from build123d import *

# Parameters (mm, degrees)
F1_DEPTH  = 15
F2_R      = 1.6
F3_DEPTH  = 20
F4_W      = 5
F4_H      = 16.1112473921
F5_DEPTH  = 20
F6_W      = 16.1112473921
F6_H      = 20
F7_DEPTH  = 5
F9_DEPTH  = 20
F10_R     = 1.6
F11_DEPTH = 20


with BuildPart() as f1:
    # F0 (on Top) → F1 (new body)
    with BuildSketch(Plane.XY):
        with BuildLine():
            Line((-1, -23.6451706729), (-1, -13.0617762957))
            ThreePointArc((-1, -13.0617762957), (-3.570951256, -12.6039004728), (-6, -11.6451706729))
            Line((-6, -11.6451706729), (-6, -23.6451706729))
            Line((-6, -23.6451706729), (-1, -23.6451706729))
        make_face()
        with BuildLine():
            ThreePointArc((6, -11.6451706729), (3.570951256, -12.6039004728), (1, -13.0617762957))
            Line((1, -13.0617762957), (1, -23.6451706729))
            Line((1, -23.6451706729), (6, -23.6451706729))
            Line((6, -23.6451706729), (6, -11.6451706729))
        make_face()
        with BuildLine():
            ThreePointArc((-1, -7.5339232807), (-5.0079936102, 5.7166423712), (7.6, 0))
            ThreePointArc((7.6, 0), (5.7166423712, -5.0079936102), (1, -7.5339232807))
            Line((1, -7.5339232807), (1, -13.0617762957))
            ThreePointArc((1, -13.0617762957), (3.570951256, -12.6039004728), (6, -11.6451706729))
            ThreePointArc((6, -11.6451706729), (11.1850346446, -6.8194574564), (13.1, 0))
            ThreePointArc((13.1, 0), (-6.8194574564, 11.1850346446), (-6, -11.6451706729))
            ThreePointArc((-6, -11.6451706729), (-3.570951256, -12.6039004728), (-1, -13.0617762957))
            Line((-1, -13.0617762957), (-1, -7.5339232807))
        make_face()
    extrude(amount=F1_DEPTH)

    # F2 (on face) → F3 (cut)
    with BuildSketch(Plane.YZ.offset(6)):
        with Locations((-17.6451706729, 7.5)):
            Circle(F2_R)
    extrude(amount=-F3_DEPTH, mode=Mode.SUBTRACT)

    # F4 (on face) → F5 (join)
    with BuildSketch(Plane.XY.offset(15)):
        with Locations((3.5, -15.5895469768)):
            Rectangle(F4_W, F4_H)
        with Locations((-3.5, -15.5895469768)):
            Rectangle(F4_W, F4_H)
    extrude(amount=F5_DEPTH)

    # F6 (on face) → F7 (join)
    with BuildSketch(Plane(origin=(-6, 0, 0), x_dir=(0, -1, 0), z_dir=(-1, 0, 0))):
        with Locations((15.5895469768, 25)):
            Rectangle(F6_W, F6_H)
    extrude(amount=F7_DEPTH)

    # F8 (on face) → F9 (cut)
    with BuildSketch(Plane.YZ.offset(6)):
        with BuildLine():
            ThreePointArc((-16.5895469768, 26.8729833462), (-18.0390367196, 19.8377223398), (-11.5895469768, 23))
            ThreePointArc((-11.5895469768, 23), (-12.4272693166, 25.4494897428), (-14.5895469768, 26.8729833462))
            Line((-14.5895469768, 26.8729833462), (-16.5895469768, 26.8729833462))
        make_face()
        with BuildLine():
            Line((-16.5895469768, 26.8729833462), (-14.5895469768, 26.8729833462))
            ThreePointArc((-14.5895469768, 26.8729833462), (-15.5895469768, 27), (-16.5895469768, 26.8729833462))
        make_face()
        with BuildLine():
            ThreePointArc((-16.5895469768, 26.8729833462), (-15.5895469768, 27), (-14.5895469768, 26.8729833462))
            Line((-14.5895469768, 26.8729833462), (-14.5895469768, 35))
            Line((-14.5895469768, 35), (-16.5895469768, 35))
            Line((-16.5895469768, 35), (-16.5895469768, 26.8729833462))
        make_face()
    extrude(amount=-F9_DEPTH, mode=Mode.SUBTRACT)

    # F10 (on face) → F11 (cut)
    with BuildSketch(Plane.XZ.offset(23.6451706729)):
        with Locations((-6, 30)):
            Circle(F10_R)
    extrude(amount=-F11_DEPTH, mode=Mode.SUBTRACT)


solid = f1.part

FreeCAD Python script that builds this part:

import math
import FreeCAD as App
import Part
import Sketcher
Q = App.Units.Quantity

doc = App.newDocument("Part")
params = doc.addObject("Spreadsheet::Sheet", "Params")
for row, (alias, value) in enumerate([
    ("sketch1_radius", "7.6 mm"),
    ("sketch1_radius2", "13.1 mm"),
    ("sketch1_width", "5 mm"),
    ("sketch1_height", "12 mm"),
    ("pad1_length", "15 mm"),
    ("sketch2_diameter", "3.2 mm"),
    ("pocket1_length", "20 mm"),
    ("sketch3_width", "5 mm"),
    ("pad2_length", "20 mm"),
    ("sketch4_height", "20 mm"),
    ("pad3_length", "5 mm"),
    ("sketch5_radius", "4 mm"),
    ("sketch5_width", "2 mm"),
    ("pocket2_length", "20 mm"),
    ("sketch6_diameter", "3.2 mm"),
    ("pocket3_length", "20 mm"),
], start=1):
    params.set(f"A{row}", alias)
    params.set(f"B{row}", "=" + value)
    params.setAlias(f"B{row}", alias)

body = doc.addObject("PartDesign::Body", "Body")

# Sketch on XY plane
sketch1 = body.newObject("Sketcher::SketchObject", "Sketch")
sketch1.AttachmentSupport = (doc.getObject("XY_Plane"), [""])
sketch1.MapMode = "FlatFace"
sketch1.addGeometry([
    Part.LineSegment(App.Vector(-1, -24, 0), App.Vector(-1, -8, 0)),  # 0
    Part.ArcOfCircle(Part.Circle(App.Vector(0, 0, 0), App.Vector(0, 0, 1), 8), math.radians(0), math.radians(262)),  # 1
    Part.ArcOfCircle(Part.Circle(App.Vector(0, 0, 0), App.Vector(0, 0, 1), 8), math.radians(-82), math.radians(0)),  # 2
    Part.LineSegment(App.Vector(1, -8, 0), App.Vector(1, -24, 0)),  # 3
    Part.LineSegment(App.Vector(1, -24, 0), App.Vector(6, -24, 0)),  # 4
    Part.LineSegment(App.Vector(6, -24, 0), App.Vector(6, -12, 0)),  # 5
    Part.ArcOfCircle(Part.Circle(App.Vector(0, 0, 0), App.Vector(0, 0, 1), 13), math.radians(-63), math.radians(0)),  # 6
    Part.ArcOfCircle(Part.Circle(App.Vector(0, 0, 0), App.Vector(0, 0, 1), 13), math.radians(0), math.radians(243)),  # 7
    Part.LineSegment(App.Vector(-6, -12, 0), App.Vector(-6, -24, 0)),  # 8
    Part.LineSegment(App.Vector(-6, -24, 0), App.Vector(-1, -24, 0)),  # 9
], False)
sketch1.addConstraint([
    Sketcher.Constraint("Coincident", 0, 2, 1, 2),
    Sketcher.Constraint("Tangent", 1, 1, 2, 2),
    Sketcher.Constraint("Coincident", 2, 1, 3, 1),
    Sketcher.Constraint("Coincident", 3, 2, 4, 1),
    Sketcher.Constraint("Coincident", 4, 2, 5, 1),
    Sketcher.Constraint("Coincident", 5, 2, 6, 1),
    Sketcher.Constraint("Tangent", 6, 2, 7, 1),
    Sketcher.Constraint("Coincident", 7, 2, 8, 1),
    Sketcher.Constraint("Coincident", 8, 2, 9, 1),
    Sketcher.Constraint("Coincident", 9, 2, 0, 1),
    Sketcher.Constraint("Vertical", 0),
    Sketcher.Constraint("Vertical", 3),
    Sketcher.Constraint("Horizontal", 4),
    Sketcher.Constraint("Vertical", 5),
    Sketcher.Constraint("Vertical", 8),
    Sketcher.Constraint("Horizontal", 9),
    Sketcher.Constraint("Coincident", 1, 3, -1, 1),
    Sketcher.Constraint("Coincident", 6, 3, -1, 1),
    Sketcher.Constraint("Equal", 1, 2),
    Sketcher.Constraint("Equal", 6, 7),
    Sketcher.Constraint("Symmetric", 4, 2, 8, 2, -2),
    Sketcher.Constraint("PointOnObject", 1, 1, -1),
    Sketcher.Constraint("PointOnObject", 6, 2, -1),
    Sketcher.Constraint("Horizontal", 0, 2, 2, 1),
    Sketcher.Constraint("Radius", 1, Q("7.6 mm")),
    Sketcher.Constraint("Radius", 6, Q("13.1 mm")),
    Sketcher.Constraint("DistanceX", 4, 1, 4, 2, Q("5 mm")),
    Sketcher.Constraint("DistanceY", 5, 1, 5, 2, Q("12 mm")),
    Sketcher.Constraint("DistanceX", 0, 2, -1, 1, Q("1 mm")),
])
sketch1.setExpression("Constraints[24]", "Params.sketch1_radius")
sketch1.setExpression("Constraints[25]", "Params.sketch1_radius2")
sketch1.setExpression("Constraints[26]", "Params.sketch1_width")
sketch1.setExpression("Constraints[27]", "Params.sketch1_height")
pad1 = body.newObject("PartDesign::Pad", "Pad")
pad1.Profile = sketch1
pad1.setExpression("Length", "Params.pad1_length")

# Sketch on YZ plane
sketch2 = body.newObject("Sketcher::SketchObject", "Sketch001")
sketch2.AttachmentSupport = (doc.getObject("YZ_Plane"), [""])
sketch2.MapMode = "FlatFace"
sketch2.AttachmentOffset = App.Placement(App.Vector(0, 0, 6), App.Rotation())
sketch2.addGeometry(Part.Circle(App.Vector(-17.6, 7.5, 0), App.Vector(0, 0, 1), 1.6), False)
sketch2.addConstraint([
    Sketcher.Constraint("Diameter", 0, Q("3.2 mm")),
    Sketcher.Constraint("DistanceY", -1, 1, 0, 3, Q("7.5 mm")),
    Sketcher.Constraint("DistanceX", 0, 3, -1, 1, Q("17.645171 mm")),
])
sketch2.setExpression("Constraints[0]", "Params.sketch2_diameter")
pocket1 = body.newObject("PartDesign::Pocket", "Pocket")
pocket1.Profile = sketch2
pocket1.setExpression("Length", "Params.pocket1_length")

# Sketch on XY plane
sketch3 = body.newObject("Sketcher::SketchObject", "Sketch002")
sketch3.AttachmentSupport = (doc.getObject("XY_Plane"), [""])
sketch3.MapMode = "FlatFace"
sketch3.AttachmentOffset = App.Placement(App.Vector(0, 0, 15), App.Rotation())
sketch3.addGeometry([
    Part.LineSegment(App.Vector(1, -8, 0), App.Vector(1, -24, 0)),  # 0
    Part.LineSegment(App.Vector(1, -24, 0), App.Vector(6, -24, 0)),  # 1
    Part.LineSegment(App.Vector(6, -24, 0), App.Vector(6, -8, 0)),  # 2
    Part.LineSegment(App.Vector(6, -8, 0), App.Vector(1, -8, 0)),  # 3
    Part.LineSegment(App.Vector(-6, -8, 0), App.Vector(-6, -24, 0)),  # 4
    Part.LineSegment(App.Vector(-6, -24, 0), App.Vector(-1, -24, 0)),  # 5
    Part.LineSegment(App.Vector(-1, -24, 0), App.Vector(-1, -8, 0)),  # 6
    Part.LineSegment(App.Vector(-1, -8, 0), App.Vector(-6, -8, 0)),  # 7
], False)
sketch3.addConstraint([
    Sketcher.Constraint("Coincident", 0, 2, 1, 1),
    Sketcher.Constraint("Coincident", 1, 2, 2, 1),
    Sketcher.Constraint("Coincident", 2, 2, 3, 1),
    Sketcher.Constraint("Coincident", 3, 2, 0, 1),
    Sketcher.Constraint("Coincident", 4, 2, 5, 1),
    Sketcher.Constraint("Coincident", 5, 2, 6, 1),
    Sketcher.Constraint("Coincident", 6, 2, 7, 1),
    Sketcher.Constraint("Coincident", 7, 2, 4, 1),
    Sketcher.Constraint("Vertical", 0),
    Sketcher.Constraint("Horizontal", 1),
    Sketcher.Constraint("Vertical", 2),
    Sketcher.Constraint("Horizontal", 3),
    Sketcher.Constraint("Vertical", 4),
    Sketcher.Constraint("Horizontal", 5),
    Sketcher.Constraint("Vertical", 6),
    Sketcher.Constraint("Horizontal", 7),
    Sketcher.Constraint("Symmetric", 1, 2, 4, 2, -2),
    Sketcher.Constraint("Symmetric", 3, 2, 6, 2, -2),
    Sketcher.Constraint("DistanceX", 1, 1, 1, 2, Q("5 mm")),
    Sketcher.Constraint("DistanceX", -1, 1, 0, 2, Q("1 mm")),
    Sketcher.Constraint("DistanceY", 0, 2, 0, 1, Q("16.111247 mm")),
    Sketcher.Constraint("DistanceY", 0, 2, -1, 1, Q("23.645171 mm")),
])
sketch3.setExpression("Constraints[18]", "Params.sketch3_width")
pad2 = body.newObject("PartDesign::Pad", "Pad001")
pad2.Profile = sketch3
pad2.setExpression("Length", "Params.pad2_length")

# Sketch on YZ plane
sketch4 = body.newObject("Sketcher::SketchObject", "Sketch003")
sketch4.AttachmentSupport = (doc.getObject("YZ_Plane"), [""])
sketch4.MapMode = "FlatFace"
sketch4.AttachmentOffset = App.Placement(App.Vector(0, 0, -6), App.Rotation())
sketch4.addGeometry([
    Part.LineSegment(App.Vector(-8, 35, 0), App.Vector(-8, 15, 0)),
    Part.LineSegment(App.Vector(-8, 15, 0), App.Vector(-24, 15, 0)),
    Part.LineSegment(App.Vector(-24, 15, 0), App.Vector(-24, 35, 0)),
    Part.LineSegment(App.Vector(-24, 35, 0), App.Vector(-8, 35, 0)),
], False)
sketch4.addConstraint([
    Sketcher.Constraint("Coincident", 0, 2, 1, 1),
    Sketcher.Constraint("Coincident", 1, 2, 2, 1),
    Sketcher.Constraint("Coincident", 2, 2, 3, 1),
    Sketcher.Constraint("Coincident", 3, 2, 0, 1),
    Sketcher.Constraint("Vertical", 0),
    Sketcher.Constraint("Horizontal", 1),
    Sketcher.Constraint("Vertical", 2),
    Sketcher.Constraint("Horizontal", 3),
    Sketcher.Constraint("DistanceY", 0, 2, 0, 1, Q("20 mm")),
    Sketcher.Constraint("DistanceY", -1, 1, 0, 2, Q("15 mm")),
    Sketcher.Constraint("DistanceX", 1, 2, 1, 1, Q("16.111247 mm")),
    Sketcher.Constraint("DistanceX", 1, 2, -1, 1, Q("23.645171 mm")),
])
sketch4.setExpression("Constraints[8]", "Params.sketch4_height")
pad3 = body.newObject("PartDesign::Pad", "Pad002")
pad3.Profile = sketch4
pad3.setExpression("Length", "Params.pad3_length")
pad3.Reversed = True

# Sketch on YZ plane
sketch5 = body.newObject("Sketcher::SketchObject", "Sketch004")
sketch5.AttachmentSupport = (doc.getObject("YZ_Plane"), [""])
sketch5.MapMode = "FlatFace"
sketch5.AttachmentOffset = App.Placement(App.Vector(0, 0, 6), App.Rotation())
sketch5.addGeometry([
    Part.ArcOfCircle(Part.Circle(App.Vector(-15.6, 23, 0), App.Vector(0, 0, 1), 4), math.radians(104), math.radians(360)),  # 0
    Part.ArcOfCircle(Part.Circle(App.Vector(-15.6, 23, 0), App.Vector(0, 0, 1), 4), math.radians(0), math.radians(76)),  # 1
    Part.LineSegment(App.Vector(-14.6, 26.9, 0), App.Vector(-14.6, 35, 0)),  # 2
    Part.LineSegment(App.Vector(-14.6, 35, 0), App.Vector(-16.6, 35, 0)),  # 3
    Part.LineSegment(App.Vector(-16.6, 35, 0), App.Vector(-16.6, 26.9, 0)),  # 4
], False)
sketch5.addConstraint([
    Sketcher.Constraint("Tangent", 0, 2, 1, 1),
    Sketcher.Constraint("Coincident", 1, 2, 2, 1),
    Sketcher.Constraint("Coincident", 2, 2, 3, 1),
    Sketcher.Constraint("Coincident", 3, 2, 4, 1),
    Sketcher.Constraint("Coincident", 4, 2, 0, 1),
    Sketcher.Constraint("Vertical", 2),
    Sketcher.Constraint("Horizontal", 3),
    Sketcher.Constraint("Vertical", 4),
    Sketcher.Constraint("Equal", 0, 1),
    Sketcher.Constraint("Horizontal", 1, 3, 0, 2),
    Sketcher.Constraint("Horizontal", 1, 2, 4, 2),
    Sketcher.Constraint("Radius", 0, Q("4 mm")),
    Sketcher.Constraint("DistanceX", 3, 2, 3, 1, Q("2 mm")),
    Sketcher.Constraint("DistanceY", -1, 1, 0, 3, Q("23 mm")),
    Sketcher.Constraint("DistanceY", -1, 1, 2, 2, Q("35 mm")),
    Sketcher.Constraint("DistanceX", 0, 3, -1, 1, Q("15.589547 mm")),
])
sketch5.setExpression("Constraints[11]", "Params.sketch5_radius")
sketch5.setExpression("Constraints[12]", "Params.sketch5_width")
pocket2 = body.newObject("PartDesign::Pocket", "Pocket001")
pocket2.Profile = sketch5
pocket2.setExpression("Length", "Params.pocket2_length")

# Sketch on XZ plane
sketch6 = body.newObject("Sketcher::SketchObject", "Sketch005")
sketch6.AttachmentSupport = (doc.getObject("XZ_Plane"), [""])
sketch6.MapMode = "FlatFace"
sketch6.AttachmentOffset = App.Placement(App.Vector(0, 0, 23.645171), App.Rotation())
sketch6.addGeometry(Part.Circle(App.Vector(-6, 30, 0), App.Vector(0, 0, 1), 1.6), False)
sketch6.addConstraint([
    Sketcher.Constraint("Diameter", 0, Q("3.2 mm")),
    Sketcher.Constraint("DistanceX", 0, 3, -1, 1, Q("6 mm")),
    Sketcher.Constraint("DistanceY", -1, 1, 0, 3, Q("30 mm")),
])
sketch6.setExpression("Constraints[0]", "Params.sketch6_diameter")
pocket3 = body.newObject("PartDesign::Pocket", "Pocket002")
pocket3.Profile = sketch6
pocket3.setExpression("Length", "Params.pocket3_length")

doc.recompute()
